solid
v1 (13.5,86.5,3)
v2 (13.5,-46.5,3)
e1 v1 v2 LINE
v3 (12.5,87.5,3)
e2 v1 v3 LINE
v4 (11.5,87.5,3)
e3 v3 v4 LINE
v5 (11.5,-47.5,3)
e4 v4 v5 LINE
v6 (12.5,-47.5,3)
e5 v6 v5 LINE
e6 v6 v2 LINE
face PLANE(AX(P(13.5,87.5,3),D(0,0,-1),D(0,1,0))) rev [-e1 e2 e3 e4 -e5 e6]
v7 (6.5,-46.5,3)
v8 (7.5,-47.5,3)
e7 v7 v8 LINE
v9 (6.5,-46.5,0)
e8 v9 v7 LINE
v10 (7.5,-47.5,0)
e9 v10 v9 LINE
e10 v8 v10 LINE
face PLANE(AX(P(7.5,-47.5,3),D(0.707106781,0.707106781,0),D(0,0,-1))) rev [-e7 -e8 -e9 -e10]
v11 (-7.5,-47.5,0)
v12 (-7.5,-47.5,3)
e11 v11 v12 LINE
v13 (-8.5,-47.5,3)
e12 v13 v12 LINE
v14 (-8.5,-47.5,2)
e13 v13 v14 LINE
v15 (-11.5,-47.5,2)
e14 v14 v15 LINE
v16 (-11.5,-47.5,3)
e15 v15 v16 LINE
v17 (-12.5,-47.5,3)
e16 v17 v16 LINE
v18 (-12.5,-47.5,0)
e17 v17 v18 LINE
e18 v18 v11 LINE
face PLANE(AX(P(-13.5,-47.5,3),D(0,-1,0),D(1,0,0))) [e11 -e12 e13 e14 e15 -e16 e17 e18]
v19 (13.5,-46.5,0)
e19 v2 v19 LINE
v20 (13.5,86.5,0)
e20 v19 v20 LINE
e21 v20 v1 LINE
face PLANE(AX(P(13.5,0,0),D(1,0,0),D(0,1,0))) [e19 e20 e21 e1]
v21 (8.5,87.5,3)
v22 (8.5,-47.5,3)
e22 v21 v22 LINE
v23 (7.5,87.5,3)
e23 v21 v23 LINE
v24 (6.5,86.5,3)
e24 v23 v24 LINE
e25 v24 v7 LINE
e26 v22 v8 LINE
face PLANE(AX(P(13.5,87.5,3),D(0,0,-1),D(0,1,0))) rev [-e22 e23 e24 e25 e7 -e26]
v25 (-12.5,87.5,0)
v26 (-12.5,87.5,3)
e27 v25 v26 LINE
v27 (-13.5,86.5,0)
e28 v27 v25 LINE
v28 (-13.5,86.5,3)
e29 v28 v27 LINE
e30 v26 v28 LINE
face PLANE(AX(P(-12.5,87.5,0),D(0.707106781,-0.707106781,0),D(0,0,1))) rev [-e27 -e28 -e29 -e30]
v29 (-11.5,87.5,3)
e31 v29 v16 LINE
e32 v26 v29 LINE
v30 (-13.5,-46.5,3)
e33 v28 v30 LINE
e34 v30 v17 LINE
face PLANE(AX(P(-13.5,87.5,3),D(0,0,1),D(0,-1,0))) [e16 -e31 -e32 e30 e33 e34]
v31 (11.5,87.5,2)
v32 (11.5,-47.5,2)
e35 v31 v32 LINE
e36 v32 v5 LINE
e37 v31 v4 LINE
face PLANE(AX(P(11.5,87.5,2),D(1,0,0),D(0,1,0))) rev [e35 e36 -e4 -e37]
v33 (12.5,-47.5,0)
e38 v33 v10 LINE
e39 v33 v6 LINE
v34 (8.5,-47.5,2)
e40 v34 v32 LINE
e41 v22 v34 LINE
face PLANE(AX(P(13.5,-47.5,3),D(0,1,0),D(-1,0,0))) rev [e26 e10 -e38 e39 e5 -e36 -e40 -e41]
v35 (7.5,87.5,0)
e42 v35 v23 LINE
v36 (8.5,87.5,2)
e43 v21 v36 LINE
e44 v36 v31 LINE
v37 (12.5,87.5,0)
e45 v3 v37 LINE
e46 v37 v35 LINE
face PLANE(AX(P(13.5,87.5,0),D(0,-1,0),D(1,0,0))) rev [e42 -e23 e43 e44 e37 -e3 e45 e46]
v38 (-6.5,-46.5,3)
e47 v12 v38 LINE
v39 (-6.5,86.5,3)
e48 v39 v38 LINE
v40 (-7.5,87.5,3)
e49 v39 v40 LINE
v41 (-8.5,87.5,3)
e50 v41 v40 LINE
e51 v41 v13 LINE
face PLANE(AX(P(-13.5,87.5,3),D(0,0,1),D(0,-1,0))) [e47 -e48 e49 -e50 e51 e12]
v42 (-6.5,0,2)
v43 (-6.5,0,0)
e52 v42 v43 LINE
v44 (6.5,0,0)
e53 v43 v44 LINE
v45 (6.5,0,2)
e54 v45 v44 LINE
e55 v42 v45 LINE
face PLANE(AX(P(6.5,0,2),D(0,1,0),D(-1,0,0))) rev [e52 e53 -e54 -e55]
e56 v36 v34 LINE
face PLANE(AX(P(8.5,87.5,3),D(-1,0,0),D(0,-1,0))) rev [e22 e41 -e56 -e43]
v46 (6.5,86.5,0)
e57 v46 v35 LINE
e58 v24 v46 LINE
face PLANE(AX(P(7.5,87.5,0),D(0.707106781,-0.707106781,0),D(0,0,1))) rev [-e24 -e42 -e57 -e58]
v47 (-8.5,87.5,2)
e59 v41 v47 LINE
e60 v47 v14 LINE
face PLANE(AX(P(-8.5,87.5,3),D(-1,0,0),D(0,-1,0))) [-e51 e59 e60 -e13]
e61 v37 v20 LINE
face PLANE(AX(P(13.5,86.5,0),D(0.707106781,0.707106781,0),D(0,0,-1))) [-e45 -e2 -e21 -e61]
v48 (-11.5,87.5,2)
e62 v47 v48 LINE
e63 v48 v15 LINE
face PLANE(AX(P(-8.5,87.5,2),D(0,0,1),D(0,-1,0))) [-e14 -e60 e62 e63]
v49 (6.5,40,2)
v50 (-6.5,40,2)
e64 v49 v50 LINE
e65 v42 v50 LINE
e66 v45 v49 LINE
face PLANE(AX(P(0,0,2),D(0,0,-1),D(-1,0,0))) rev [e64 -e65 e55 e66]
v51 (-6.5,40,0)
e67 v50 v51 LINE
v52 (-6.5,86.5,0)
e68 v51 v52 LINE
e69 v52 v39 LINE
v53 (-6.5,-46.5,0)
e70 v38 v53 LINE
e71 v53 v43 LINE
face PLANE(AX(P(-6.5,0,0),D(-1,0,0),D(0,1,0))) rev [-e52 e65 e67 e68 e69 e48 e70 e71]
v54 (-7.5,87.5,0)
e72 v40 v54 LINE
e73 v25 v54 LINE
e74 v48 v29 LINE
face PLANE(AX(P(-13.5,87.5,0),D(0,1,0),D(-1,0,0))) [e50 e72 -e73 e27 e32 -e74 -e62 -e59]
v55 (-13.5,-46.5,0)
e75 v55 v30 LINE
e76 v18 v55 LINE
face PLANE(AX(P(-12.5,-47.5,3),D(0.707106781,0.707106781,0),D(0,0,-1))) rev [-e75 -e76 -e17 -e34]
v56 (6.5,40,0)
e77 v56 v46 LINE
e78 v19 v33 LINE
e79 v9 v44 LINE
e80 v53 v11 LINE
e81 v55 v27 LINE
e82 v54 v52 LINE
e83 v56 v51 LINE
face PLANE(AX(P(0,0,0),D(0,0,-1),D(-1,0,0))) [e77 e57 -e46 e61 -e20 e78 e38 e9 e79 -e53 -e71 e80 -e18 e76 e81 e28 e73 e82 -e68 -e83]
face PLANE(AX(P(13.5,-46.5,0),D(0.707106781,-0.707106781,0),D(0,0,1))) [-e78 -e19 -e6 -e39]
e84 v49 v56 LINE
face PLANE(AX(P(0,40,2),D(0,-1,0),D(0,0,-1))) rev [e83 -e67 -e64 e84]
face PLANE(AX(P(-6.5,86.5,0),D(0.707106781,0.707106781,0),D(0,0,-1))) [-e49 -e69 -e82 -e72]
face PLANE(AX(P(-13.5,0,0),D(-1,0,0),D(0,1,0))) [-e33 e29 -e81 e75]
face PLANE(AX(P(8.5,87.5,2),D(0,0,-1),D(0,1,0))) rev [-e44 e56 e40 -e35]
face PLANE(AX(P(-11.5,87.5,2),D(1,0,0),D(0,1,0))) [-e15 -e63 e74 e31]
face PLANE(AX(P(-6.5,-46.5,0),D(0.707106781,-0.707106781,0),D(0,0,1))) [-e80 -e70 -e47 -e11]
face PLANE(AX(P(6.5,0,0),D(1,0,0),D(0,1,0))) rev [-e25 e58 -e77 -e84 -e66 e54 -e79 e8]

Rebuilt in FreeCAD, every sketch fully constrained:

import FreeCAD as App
import Part
import Sketcher


def edges_at(feature, points):
    """Names of the edges that pass closest to the given points."""
    edges = feature.Shape.Edges
    near = lambda p: min(range(len(edges)), key=lambda i: edges[i].distToShape(Part.Vertex(*p))[0])
    return sorted({f"Edge{near(p) + 1}" for p in points})


def add_polygon(sketch, points):
    """Adds a closed chain of lines whose ends are joined by coincident constraints."""
    first, n = sketch.GeometryCount, len(points)
    for a, b in zip(points, points[1:] + points[:1]):
        sketch.addGeometry(Part.LineSegment(App.Vector(*a, 0), App.Vector(*b, 0)), False)
    for i in range(n):
        sketch.addConstraint(Sketcher.Constraint("Coincident", first + i, 2, first + (i + 1) % n, 1))

doc = App.newDocument("Part")
body = doc.addObject("PartDesign::Body", "Body")

sketch1 = body.newObject("Sketcher::SketchObject", "Sketch")
sketch1.AttachmentSupport = (doc.getObject("XY_Plane"), [""])
sketch1.MapMode = "FlatFace"
add_polygon(sketch1, [(0, 40), (0, 0), (6, 0), (6, 40)])
sketch1.addConstraint(Sketcher.Constraint("Vertical", 0))
sketch1.addConstraint(Sketcher.Constraint("Horizontal", 1))
sketch1.addConstraint(Sketcher.Constraint("Vertical", 2))
sketch1.addConstraint(Sketcher.Constraint("Horizontal", 3))
sketch1.addConstraint(Sketcher.Constraint("Coincident", 0, 2, -1, 1))
sketch1.addConstraint(Sketcher.Constraint("DistanceY", 0, 2, 0, 1, 40.0))
sketch1.addConstraint(Sketcher.Constraint("DistanceX", 1, 1, 1, 2, 6.5))
pad1 = body.newObject("PartDesign::Pad", "Pad")
pad1.Profile = sketch1
pad1.Length = 2

sketch2 = body.newObject("Sketcher::SketchObject", "Sketch001")
sketch2.AttachmentSupport = (doc.getObject("YZ_Plane"), [""])
sketch2.MapMode = "FlatFace"
sketch2.AttachmentOffset = App.Placement(App.Vector(0, 0, 6.5), App.Rotation())
add_polygon(sketch2, [(87.5, 3), (-47.5, 3), (-47.5, 0), (87.5, 0)])
sketch2.addConstraint(Sketcher.Constraint("Horizontal", 0))
sketch2.addConstraint(Sketcher.Constraint("Vertical", 1))
sketch2.addConstraint(Sketcher.Constraint("Horizontal", 2))
sketch2.addConstraint(Sketcher.Constraint("Vertical", 3))
sketch2.addConstraint(Sketcher.Constraint("PointOnObject", 1, 2, -1))
sketch2.addConstraint(Sketcher.Constraint("DistanceX", 0, 2, 0, 1, 135.0))
sketch2.addConstraint(Sketcher.Constraint("DistanceY", 1, 2, 1, 1, 3.0))
sketch2.addConstraint(Sketcher.Constraint("DistanceX", 0, 2, -1, 1, 47.5))
pad2 = body.newObject("PartDesign::Pad", "Pad001")
pad2.Profile = sketch2
pad2.Length = 7
doc.recompute()

chamfer = body.newObject("PartDesign::Chamfer", "Chamfer")
chamfer.Base = (pad2, edges_at(pad2, [
    (6.5, 87.5, 1.5),
    (6.5, -47.5, 1.5),
    (13.5, 87.5, 1.5),
    (13.5, -47.5, 1.5),
]))
chamfer.Size = 1

sketch3 = body.newObject("Sketcher::SketchObject", "Sketch002")
sketch3.AttachmentSupport = (doc.getObject("XZ_Plane"), [""])
sketch3.MapMode = "FlatFace"
sketch3.AttachmentOffset = App.Placement(App.Vector(0, 0, 47.5), App.Rotation())
add_polygon(sketch3, [(8.5, 3), (8.5, 2), (11.5, 2), (11.5, 3)])
sketch3.addConstraint(Sketcher.Constraint("Vertical", 0))
sketch3.addConstraint(Sketcher.Constraint("Horizontal", 1))
sketch3.addConstraint(Sketcher.Constraint("Vertical", 2))
sketch3.addConstraint(Sketcher.Constraint("Horizontal", 3))
sketch3.addConstraint(Sketcher.Constraint("DistanceX", 1, 1, 1, 2, 3.0))
sketch3.addConstraint(Sketcher.Constraint("DistanceY", 0, 2, 0, 1, 1.0))
sketch3.addConstraint(Sketcher.Constraint("DistanceY", -1, 1, 0, 2, 2.0))
sketch3.addConstraint(Sketcher.Constraint("DistanceX", -1, 1, 0, 2, 8.5))
pocket1 = body.newObject("PartDesign::Pocket", "Pocket")
pocket1.Profile = sketch3
pocket1.Type = "ThroughAll"
doc.recompute()

mirrored = body.newObject("PartDesign::Mirrored", "Mirrored")
mirrored.Originals = [pad1, pad2, pocket1]
mirrored.MirrorPlane = (doc.getObject("YZ_Plane"), [""])
body.Tip = mirrored
doc.recompute()

chamfer2 = body.newObject("PartDesign::Chamfer", "Chamfer001")
chamfer2.Base = (mirrored, edges_at(mirrored, [
    (-6.5, 87.5, 1.5),
    (-6.5, -47.5, 1.5),
    (-13.5, 87.5, 1.5),
    (-13.5, -47.5, 1.5),
]))
chamfer2.Size = 1

doc.recompute()
